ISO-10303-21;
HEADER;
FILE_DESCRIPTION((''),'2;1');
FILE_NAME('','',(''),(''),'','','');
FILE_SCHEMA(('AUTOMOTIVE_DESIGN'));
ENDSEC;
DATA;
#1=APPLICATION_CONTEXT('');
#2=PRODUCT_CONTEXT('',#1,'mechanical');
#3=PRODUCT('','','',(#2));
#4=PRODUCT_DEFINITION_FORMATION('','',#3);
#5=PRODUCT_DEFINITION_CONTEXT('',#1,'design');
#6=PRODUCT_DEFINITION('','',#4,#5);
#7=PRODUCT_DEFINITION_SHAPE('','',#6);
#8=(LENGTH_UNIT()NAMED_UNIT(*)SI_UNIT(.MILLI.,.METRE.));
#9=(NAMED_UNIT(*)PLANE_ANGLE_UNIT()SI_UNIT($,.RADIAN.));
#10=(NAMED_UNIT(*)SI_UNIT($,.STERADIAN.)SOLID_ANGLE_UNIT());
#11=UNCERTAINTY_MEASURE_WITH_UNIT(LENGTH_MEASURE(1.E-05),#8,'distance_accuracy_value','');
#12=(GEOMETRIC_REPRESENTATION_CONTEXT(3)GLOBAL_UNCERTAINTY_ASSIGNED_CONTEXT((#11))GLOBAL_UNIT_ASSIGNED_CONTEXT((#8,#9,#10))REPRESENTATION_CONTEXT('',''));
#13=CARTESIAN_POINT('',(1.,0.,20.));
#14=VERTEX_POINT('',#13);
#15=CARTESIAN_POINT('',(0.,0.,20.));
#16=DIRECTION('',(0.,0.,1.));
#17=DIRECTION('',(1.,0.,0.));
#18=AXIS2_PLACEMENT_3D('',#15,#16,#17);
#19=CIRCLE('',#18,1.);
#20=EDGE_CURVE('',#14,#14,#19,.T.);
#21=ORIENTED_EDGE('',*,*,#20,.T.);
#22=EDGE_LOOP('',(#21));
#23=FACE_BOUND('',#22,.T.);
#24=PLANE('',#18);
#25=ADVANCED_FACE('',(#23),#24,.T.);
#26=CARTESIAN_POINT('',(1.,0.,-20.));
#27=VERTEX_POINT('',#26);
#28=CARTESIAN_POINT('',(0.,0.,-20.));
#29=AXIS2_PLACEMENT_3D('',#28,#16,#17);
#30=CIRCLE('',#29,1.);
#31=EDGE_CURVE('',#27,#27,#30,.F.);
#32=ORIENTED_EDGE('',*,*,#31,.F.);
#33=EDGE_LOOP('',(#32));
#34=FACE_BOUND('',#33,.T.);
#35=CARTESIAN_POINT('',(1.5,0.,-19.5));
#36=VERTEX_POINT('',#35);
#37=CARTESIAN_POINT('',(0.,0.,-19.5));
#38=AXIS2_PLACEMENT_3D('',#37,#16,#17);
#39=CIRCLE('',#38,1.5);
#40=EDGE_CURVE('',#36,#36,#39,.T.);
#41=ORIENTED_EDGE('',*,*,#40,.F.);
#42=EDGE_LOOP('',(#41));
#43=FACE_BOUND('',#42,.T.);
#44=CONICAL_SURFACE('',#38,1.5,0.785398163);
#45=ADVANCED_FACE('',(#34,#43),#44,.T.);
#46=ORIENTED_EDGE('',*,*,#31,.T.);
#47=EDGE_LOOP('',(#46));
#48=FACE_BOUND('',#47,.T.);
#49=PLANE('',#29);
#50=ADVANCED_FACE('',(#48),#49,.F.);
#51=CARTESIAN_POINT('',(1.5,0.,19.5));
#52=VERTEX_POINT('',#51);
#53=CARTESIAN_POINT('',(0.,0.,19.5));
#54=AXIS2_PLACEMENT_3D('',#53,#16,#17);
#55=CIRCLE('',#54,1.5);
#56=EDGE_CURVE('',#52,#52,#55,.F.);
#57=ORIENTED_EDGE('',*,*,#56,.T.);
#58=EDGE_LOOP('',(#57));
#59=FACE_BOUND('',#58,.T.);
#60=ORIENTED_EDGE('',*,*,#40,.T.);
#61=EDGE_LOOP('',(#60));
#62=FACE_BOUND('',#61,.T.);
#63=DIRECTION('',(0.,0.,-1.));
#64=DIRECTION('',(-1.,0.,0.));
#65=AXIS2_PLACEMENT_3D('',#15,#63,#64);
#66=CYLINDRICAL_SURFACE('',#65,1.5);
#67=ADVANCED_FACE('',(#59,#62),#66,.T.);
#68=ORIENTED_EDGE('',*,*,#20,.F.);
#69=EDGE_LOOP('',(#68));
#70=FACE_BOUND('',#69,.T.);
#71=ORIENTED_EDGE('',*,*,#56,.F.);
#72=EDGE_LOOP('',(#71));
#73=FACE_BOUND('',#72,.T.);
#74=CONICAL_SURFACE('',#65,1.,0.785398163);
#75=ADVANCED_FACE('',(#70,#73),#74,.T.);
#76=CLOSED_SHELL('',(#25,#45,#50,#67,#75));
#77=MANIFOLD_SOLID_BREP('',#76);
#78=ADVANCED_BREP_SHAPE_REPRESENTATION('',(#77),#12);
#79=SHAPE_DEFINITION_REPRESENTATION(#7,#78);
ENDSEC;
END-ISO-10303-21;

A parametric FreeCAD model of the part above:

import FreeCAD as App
import Part
import Sketcher

V = App.Vector
Q = App.Units.Quantity


def edges_at(feature, points):
    """Names of the edges that pass closest to the given points."""
    edges = feature.Shape.Edges
    near = lambda p: min(range(len(edges)), key=lambda i: edges[i].distToShape(Part.Vertex(*p))[0])
    return sorted({f"Edge{near(p) + 1}" for p in points})

doc = App.newDocument("Part")
params = doc.addObject("Spreadsheet::Sheet", "Params")
for row, (alias, value) in enumerate([
    ("sketch1_diameter", "3 mm"),
    ("pad1_length", "40 mm"),
    ("chamfer_size", "0.5 mm"),
], start=1):
    params.set(f"A{row}", alias)
    params.set(f"B{row}", "=" + value)
    params.setAlias(f"B{row}", alias)

body = doc.addObject("PartDesign::Body", "Body")

# Sketch on XY plane
sketch1 = body.newObject("Sketcher::SketchObject", "Sketch")
sketch1.AttachmentSupport = (doc.getObject("XY_Plane"), [""])
sketch1.MapMode = "FlatFace"
sketch1.addGeometry(Part.Circle(V(0, 0, 0), V(0, 0, 1), 1.5), False)
sketch1.addConstraint(Sketcher.Constraint("Coincident", 0, 3, -1, 1))
sketch1.addConstraint(Sketcher.Constraint("Diameter", 0, Q("3 mm")))
sketch1.setExpression("Constraints[1]", "Params.sketch1_diameter")
pad1 = body.newObject("PartDesign::Pad", "Pad")
pad1.Profile = sketch1
pad1.setExpression("Length", "Params.pad1_length")
pad1.Midplane = True
doc.recompute()

chamfer = body.newObject("PartDesign::Chamfer", "Chamfer")
chamfer.Base = (pad1, edges_at(pad1, [(-1.5, 0, -20), (-1.5, 0, 20)]))
chamfer.setExpression("Size", "Params.chamfer_size")

doc.recompute()
